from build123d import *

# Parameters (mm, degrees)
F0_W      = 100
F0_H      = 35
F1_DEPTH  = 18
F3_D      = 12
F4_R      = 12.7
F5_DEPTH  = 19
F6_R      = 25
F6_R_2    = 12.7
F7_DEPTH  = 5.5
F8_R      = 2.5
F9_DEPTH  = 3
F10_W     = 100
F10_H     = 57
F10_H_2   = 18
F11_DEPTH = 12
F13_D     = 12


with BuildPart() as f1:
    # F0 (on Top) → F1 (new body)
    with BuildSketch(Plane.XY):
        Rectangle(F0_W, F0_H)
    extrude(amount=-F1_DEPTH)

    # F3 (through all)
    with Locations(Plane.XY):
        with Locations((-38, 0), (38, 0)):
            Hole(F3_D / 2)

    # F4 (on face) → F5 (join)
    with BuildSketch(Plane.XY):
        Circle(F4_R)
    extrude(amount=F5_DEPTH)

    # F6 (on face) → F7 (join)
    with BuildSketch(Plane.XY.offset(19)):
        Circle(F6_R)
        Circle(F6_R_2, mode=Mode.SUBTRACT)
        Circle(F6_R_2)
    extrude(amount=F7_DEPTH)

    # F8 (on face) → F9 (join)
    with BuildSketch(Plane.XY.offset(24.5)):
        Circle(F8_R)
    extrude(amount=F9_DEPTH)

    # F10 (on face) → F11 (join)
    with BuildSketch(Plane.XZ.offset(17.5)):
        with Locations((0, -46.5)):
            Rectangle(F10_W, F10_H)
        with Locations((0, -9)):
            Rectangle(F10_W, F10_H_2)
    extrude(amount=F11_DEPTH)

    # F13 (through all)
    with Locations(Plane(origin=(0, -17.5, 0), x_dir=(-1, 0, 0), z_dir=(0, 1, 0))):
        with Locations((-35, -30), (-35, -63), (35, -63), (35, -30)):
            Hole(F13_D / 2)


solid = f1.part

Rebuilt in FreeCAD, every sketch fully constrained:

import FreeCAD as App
import Part
import Sketcher

V = App.Vector


def add_polygon(sketch, points):
    """Adds a closed chain of lines whose ends are joined by coincident constraints."""
    first, n = sketch.GeometryCount, len(points)
    for a, b in zip(points, points[1:] + points[:1]):
        sketch.addGeometry(Part.LineSegment(App.Vector(*a, 0), App.Vector(*b, 0)), False)
    for i in range(n):
        sketch.addConstraint(Sketcher.Constraint("Coincident", first + i, 2, first + (i + 1) % n, 1))

doc = App.newDocument("Part")
body = doc.addObject("PartDesign::Body", "Body")

sketch1 = doc.addObject("Sketcher::SketchObject", "Sketch")
body.addObject(sketch1)
sketch1.AttachmentSupport = (doc.XY_Plane, [""])
sketch1.MapMode = "FlatFace"
add_polygon(sketch1, [(-50, 18), (-50, -18), (50, -18), (50, 18)])
sketch1.addConstraint([
    Sketcher.Constraint("Vertical", 0),
    Sketcher.Constraint("Horizontal", 1),
    Sketcher.Constraint("Vertical", 2),
    Sketcher.Constraint("Horizontal", 3),
    Sketcher.Constraint("Symmetric", 0, 2, 2, 2, -1, 1),
    Sketcher.Constraint("DistanceX", 1, 1, 1, 2, 100.0),
    Sketcher.Constraint("DistanceY", 0, 2, 0, 1, 35.0),
])
pad1 = doc.addObject("PartDesign::Pad", "Pad")
body.addObject(pad1)
pad1.Profile = sketch1
pad1.Length = 18
pad1.Reversed = True

sketch2 = doc.addObject("Sketcher::SketchObject", "Sketch001")
body.addObject(sketch2)
sketch2.AttachmentSupport = (doc.XY_Plane, [""])
sketch2.MapMode = "FlatFace"
sketch2.addGeometry([
    Part.Circle(V(-38, 0, 0), V(0, 0, 1), 6),
    Part.Circle(V(38, 0, 0), V(0, 0, 1), 6),
], False)
sketch2.addConstraint([
    Sketcher.Constraint("Equal", 0, 1),
    Sketcher.Constraint("Symmetric", 0, 3, 1, 3, -1, 1),
    Sketcher.Constraint("PointOnObject", 0, 3, -1),
    Sketcher.Constraint("Diameter", 0, 12.0),
    Sketcher.Constraint("DistanceX", 0, 3, -1, 1, 38.0),
])
doc.recompute()
hole = doc.addObject("PartDesign::Hole", "Hole")
body.addObject(hole)
hole.Profile = sketch2
hole.ThreadType = "None"
hole.Diameter = 12
hole.DepthType = "ThroughAll"

sketch3 = doc.addObject("Sketcher::SketchObject", "Sketch002")
body.addObject(sketch3)
sketch3.AttachmentSupport = (doc.XY_Plane, [""])
sketch3.MapMode = "FlatFace"
sketch3.addGeometry(Part.Circle(V(0, 0, 0), V(0, 0, 1), 13), False)
sketch3.addConstraint([
    Sketcher.Constraint("Coincident", 0, 3, -1, 1),
    Sketcher.Constraint("Diameter", 0, 25.4),
])
pad2 = doc.addObject("PartDesign::Pad", "Pad001")
body.addObject(pad2)
pad2.Profile = sketch3
pad2.Length = 19

sketch4 = doc.addObject("Sketcher::SketchObject", "Sketch003")
body.addObject(sketch4)
sketch4.AttachmentSupport = (doc.XY_Plane, [""])
sketch4.MapMode = "FlatFace"
sketch4.AttachmentOffset = App.Placement(V(0, 0, 19), App.Rotation())
sketch4.addGeometry(Part.Circle(V(0, 0, 0), V(0, 0, 1), 25), False)
sketch4.addConstraint([
    Sketcher.Constraint("Coincident", 0, 3, -1, 1),
    Sketcher.Constraint("Diameter", 0, 50.0),
])
pad3 = doc.addObject("PartDesign::Pad", "Pad002")
body.addObject(pad3)
pad3.Profile = sketch4
pad3.Length = 5.5

sketch5 = doc.addObject("Sketcher::SketchObject", "Sketch004")
body.addObject(sketch5)
sketch5.AttachmentSupport = (doc.XY_Plane, [""])
sketch5.MapMode = "FlatFace"
sketch5.AttachmentOffset = App.Placement(V(0, 0, 24.5), App.Rotation())
sketch5.addGeometry(Part.Circle(V(0, 0, 0), V(0, 0, 1), 2.5), False)
sketch5.addConstraint([
    Sketcher.Constraint("Coincident", 0, 3, -1, 1),
    Sketcher.Constraint("Diameter", 0, 5.0),
])
pad4 = doc.addObject("PartDesign::Pad", "Pad003")
body.addObject(pad4)
pad4.Profile = sketch5
pad4.Length = 3

sketch6 = doc.addObject("Sketcher::SketchObject", "Sketch005")
body.addObject(sketch6)
sketch6.AttachmentSupport = (doc.XZ_Plane, [""])
sketch6.MapMode = "FlatFace"
sketch6.AttachmentOffset = App.Placement(V(0, 0, 17.5), App.Rotation())
add_polygon(sketch6, [(-50, -75), (50, -75), (50, 0), (-50, 0)])
sketch6.addConstraint([
    Sketcher.Constraint("Horizontal", 0),
    Sketcher.Constraint("Vertical", 1),
    Sketcher.Constraint("Horizontal", 2),
    Sketcher.Constraint("Vertical", 3),
    Sketcher.Constraint("Symmetric", 1, 2, 2, 2, -1, 1),
    Sketcher.Constraint("DistanceX", 0, 1, 0, 2, 100.0),
    Sketcher.Constraint("DistanceY", 1, 1, 1, 2, 75.0),
])
pad5 = doc.addObject("PartDesign::Pad", "Pad004")
body.addObject(pad5)
pad5.Profile = sketch6
pad5.Length = 12

sketch7 = doc.addObject("Sketcher::SketchObject", "Sketch006")
body.addObject(sketch7)
sketch7.AttachmentSupport = (doc.XZ_Plane, [""])
sketch7.MapMode = "FlatFace"
sketch7.AttachmentOffset = App.Placement(V(0, 0, 17.5), App.Rotation())
sketch7.addGeometry([
    Part.Circle(V(35, -30, 0), V(0, 0, 1), 6),
    Part.Circle(V(35, -63, 0), V(0, 0, 1), 6),
    Part.Circle(V(-35, -63, 0), V(0, 0, 1), 6),
    Part.Circle(V(-35, -30, 0), V(0, 0, 1), 6),
], False)
sketch7.addConstraint([
    Sketcher.Constraint("Equal", 0, 1),
    Sketcher.Constraint("Equal", 1, 2),
    Sketcher.Constraint("Equal", 2, 3),
    Sketcher.Constraint("Symmetric", 1, 3, 2, 3, -2),
    Sketcher.Constraint("Symmetric", 0, 3, 3, 3, -2),
    Sketcher.Constraint("Vertical", 0, 3, 1, 3),
    Sketcher.Constraint("Diameter", 0, 12.0),
    Sketcher.Constraint("DistanceX", -1, 1, 0, 3, 35.0),
    Sketcher.Constraint("DistanceY", 0, 3, -1, 1, 30.0),
    Sketcher.Constraint("DistanceY", 1, 3, -1, 1, 63.0),
])
doc.recompute()
hole2 = doc.addObject("PartDesign::Hole", "Hole001")
body.addObject(hole2)
hole2.Profile = sketch7
hole2.ThreadType = "None"
hole2.Diameter = 12
hole2.DepthType = "ThroughAll"
hole2.Reversed = True

doc.recompute()
